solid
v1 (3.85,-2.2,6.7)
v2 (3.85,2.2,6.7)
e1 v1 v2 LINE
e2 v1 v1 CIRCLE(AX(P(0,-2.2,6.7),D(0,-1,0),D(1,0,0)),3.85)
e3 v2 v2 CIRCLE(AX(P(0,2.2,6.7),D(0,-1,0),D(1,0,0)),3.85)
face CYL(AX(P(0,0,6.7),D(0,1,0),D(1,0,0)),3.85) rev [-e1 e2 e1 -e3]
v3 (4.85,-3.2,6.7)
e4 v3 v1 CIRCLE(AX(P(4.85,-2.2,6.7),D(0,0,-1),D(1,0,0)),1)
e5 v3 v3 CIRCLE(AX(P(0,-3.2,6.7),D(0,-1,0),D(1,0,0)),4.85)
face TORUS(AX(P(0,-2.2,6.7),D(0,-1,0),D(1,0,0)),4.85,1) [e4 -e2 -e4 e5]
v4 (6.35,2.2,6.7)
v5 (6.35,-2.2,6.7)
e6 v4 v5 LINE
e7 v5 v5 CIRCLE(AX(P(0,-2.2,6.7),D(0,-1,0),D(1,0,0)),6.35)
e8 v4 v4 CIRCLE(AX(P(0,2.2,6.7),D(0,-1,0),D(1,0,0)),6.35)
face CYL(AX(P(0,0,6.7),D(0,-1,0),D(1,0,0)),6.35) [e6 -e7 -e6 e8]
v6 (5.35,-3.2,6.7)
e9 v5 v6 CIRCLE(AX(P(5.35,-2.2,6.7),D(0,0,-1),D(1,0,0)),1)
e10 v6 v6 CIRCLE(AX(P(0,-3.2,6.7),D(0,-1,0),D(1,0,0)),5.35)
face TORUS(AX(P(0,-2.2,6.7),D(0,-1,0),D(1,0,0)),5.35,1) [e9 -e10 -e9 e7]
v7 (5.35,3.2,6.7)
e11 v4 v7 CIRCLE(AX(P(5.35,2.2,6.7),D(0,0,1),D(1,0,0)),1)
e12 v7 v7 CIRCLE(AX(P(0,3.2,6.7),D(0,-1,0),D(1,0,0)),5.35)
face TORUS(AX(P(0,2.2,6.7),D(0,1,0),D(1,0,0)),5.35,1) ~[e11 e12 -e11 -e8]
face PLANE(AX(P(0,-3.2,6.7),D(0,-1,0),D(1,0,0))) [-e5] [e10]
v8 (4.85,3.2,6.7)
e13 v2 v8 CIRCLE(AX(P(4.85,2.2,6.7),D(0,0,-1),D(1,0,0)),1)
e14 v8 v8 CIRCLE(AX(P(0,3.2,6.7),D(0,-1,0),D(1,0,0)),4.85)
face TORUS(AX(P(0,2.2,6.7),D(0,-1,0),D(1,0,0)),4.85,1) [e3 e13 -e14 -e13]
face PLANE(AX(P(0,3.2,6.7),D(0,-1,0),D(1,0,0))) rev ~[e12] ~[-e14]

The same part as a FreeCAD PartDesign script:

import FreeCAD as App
import Part
import Sketcher
from FreeCAD import Vector

doc = App.newDocument("Part")
params = doc.addObject("Spreadsheet::Sheet", "Params")
for row, (alias, value) in enumerate([
    ("sketch1_diameter", "12.7 mm"),
    ("sketch1_diameter2", "7.7 mm"),
    ("pad1_length", "6.4 mm"),
    ("fillet_radius", "1 mm"),
], start=1):
    params.set(f"A{row}", alias)
    params.set(f"B{row}", "=" + value)
    params.setAlias(f"B{row}", alias)

body = doc.addObject("PartDesign::Body", "Body")

# Sketch on XZ plane
sketch1 = body.newObject("Sketcher::SketchObject", "Sketch")
sketch1.AttachmentSupport = (doc.getObject("XZ_Plane"), [""])
sketch1.MapMode = "FlatFace"
sketch1.addGeometry([
    Part.Circle(Vector(0, 6.7, 0), Vector(0, 0, 1), 6.3),
    Part.Circle(Vector(0, 6.7, 0), Vector(0, 0, 1), 3.9),
], False)
sketch1.addConstraint([
    Sketcher.Constraint("Coincident", 1, 3, 0, 3),
    Sketcher.Constraint("PointOnObject", 0, 3, -2),
    Sketcher.Constraint("Diameter", 0, 12.7),
    Sketcher.Constraint("Diameter", 1, 7.7),
    Sketcher.Constraint("DistanceY", -1, 1, 0, 3, 6.7),
])
sketch1.setExpression("Constraints[2]", "Params.sketch1_diameter")
sketch1.setExpression("Constraints[3]", "Params.sketch1_diameter2")
pad1 = body.newObject("PartDesign::Pad", "Pad")
pad1.Profile = sketch1
pad1.setExpression("Length", "Params.pad1_length")
pad1.Midplane = True
doc.recompute()

fillet = body.newObject("PartDesign::Fillet", "Fillet")
fillet.Base = (pad1, ["Edge1"])
fillet.UseAllEdges = True
fillet.setExpression("Radius", "Params.fillet_radius")

doc.recompute()
